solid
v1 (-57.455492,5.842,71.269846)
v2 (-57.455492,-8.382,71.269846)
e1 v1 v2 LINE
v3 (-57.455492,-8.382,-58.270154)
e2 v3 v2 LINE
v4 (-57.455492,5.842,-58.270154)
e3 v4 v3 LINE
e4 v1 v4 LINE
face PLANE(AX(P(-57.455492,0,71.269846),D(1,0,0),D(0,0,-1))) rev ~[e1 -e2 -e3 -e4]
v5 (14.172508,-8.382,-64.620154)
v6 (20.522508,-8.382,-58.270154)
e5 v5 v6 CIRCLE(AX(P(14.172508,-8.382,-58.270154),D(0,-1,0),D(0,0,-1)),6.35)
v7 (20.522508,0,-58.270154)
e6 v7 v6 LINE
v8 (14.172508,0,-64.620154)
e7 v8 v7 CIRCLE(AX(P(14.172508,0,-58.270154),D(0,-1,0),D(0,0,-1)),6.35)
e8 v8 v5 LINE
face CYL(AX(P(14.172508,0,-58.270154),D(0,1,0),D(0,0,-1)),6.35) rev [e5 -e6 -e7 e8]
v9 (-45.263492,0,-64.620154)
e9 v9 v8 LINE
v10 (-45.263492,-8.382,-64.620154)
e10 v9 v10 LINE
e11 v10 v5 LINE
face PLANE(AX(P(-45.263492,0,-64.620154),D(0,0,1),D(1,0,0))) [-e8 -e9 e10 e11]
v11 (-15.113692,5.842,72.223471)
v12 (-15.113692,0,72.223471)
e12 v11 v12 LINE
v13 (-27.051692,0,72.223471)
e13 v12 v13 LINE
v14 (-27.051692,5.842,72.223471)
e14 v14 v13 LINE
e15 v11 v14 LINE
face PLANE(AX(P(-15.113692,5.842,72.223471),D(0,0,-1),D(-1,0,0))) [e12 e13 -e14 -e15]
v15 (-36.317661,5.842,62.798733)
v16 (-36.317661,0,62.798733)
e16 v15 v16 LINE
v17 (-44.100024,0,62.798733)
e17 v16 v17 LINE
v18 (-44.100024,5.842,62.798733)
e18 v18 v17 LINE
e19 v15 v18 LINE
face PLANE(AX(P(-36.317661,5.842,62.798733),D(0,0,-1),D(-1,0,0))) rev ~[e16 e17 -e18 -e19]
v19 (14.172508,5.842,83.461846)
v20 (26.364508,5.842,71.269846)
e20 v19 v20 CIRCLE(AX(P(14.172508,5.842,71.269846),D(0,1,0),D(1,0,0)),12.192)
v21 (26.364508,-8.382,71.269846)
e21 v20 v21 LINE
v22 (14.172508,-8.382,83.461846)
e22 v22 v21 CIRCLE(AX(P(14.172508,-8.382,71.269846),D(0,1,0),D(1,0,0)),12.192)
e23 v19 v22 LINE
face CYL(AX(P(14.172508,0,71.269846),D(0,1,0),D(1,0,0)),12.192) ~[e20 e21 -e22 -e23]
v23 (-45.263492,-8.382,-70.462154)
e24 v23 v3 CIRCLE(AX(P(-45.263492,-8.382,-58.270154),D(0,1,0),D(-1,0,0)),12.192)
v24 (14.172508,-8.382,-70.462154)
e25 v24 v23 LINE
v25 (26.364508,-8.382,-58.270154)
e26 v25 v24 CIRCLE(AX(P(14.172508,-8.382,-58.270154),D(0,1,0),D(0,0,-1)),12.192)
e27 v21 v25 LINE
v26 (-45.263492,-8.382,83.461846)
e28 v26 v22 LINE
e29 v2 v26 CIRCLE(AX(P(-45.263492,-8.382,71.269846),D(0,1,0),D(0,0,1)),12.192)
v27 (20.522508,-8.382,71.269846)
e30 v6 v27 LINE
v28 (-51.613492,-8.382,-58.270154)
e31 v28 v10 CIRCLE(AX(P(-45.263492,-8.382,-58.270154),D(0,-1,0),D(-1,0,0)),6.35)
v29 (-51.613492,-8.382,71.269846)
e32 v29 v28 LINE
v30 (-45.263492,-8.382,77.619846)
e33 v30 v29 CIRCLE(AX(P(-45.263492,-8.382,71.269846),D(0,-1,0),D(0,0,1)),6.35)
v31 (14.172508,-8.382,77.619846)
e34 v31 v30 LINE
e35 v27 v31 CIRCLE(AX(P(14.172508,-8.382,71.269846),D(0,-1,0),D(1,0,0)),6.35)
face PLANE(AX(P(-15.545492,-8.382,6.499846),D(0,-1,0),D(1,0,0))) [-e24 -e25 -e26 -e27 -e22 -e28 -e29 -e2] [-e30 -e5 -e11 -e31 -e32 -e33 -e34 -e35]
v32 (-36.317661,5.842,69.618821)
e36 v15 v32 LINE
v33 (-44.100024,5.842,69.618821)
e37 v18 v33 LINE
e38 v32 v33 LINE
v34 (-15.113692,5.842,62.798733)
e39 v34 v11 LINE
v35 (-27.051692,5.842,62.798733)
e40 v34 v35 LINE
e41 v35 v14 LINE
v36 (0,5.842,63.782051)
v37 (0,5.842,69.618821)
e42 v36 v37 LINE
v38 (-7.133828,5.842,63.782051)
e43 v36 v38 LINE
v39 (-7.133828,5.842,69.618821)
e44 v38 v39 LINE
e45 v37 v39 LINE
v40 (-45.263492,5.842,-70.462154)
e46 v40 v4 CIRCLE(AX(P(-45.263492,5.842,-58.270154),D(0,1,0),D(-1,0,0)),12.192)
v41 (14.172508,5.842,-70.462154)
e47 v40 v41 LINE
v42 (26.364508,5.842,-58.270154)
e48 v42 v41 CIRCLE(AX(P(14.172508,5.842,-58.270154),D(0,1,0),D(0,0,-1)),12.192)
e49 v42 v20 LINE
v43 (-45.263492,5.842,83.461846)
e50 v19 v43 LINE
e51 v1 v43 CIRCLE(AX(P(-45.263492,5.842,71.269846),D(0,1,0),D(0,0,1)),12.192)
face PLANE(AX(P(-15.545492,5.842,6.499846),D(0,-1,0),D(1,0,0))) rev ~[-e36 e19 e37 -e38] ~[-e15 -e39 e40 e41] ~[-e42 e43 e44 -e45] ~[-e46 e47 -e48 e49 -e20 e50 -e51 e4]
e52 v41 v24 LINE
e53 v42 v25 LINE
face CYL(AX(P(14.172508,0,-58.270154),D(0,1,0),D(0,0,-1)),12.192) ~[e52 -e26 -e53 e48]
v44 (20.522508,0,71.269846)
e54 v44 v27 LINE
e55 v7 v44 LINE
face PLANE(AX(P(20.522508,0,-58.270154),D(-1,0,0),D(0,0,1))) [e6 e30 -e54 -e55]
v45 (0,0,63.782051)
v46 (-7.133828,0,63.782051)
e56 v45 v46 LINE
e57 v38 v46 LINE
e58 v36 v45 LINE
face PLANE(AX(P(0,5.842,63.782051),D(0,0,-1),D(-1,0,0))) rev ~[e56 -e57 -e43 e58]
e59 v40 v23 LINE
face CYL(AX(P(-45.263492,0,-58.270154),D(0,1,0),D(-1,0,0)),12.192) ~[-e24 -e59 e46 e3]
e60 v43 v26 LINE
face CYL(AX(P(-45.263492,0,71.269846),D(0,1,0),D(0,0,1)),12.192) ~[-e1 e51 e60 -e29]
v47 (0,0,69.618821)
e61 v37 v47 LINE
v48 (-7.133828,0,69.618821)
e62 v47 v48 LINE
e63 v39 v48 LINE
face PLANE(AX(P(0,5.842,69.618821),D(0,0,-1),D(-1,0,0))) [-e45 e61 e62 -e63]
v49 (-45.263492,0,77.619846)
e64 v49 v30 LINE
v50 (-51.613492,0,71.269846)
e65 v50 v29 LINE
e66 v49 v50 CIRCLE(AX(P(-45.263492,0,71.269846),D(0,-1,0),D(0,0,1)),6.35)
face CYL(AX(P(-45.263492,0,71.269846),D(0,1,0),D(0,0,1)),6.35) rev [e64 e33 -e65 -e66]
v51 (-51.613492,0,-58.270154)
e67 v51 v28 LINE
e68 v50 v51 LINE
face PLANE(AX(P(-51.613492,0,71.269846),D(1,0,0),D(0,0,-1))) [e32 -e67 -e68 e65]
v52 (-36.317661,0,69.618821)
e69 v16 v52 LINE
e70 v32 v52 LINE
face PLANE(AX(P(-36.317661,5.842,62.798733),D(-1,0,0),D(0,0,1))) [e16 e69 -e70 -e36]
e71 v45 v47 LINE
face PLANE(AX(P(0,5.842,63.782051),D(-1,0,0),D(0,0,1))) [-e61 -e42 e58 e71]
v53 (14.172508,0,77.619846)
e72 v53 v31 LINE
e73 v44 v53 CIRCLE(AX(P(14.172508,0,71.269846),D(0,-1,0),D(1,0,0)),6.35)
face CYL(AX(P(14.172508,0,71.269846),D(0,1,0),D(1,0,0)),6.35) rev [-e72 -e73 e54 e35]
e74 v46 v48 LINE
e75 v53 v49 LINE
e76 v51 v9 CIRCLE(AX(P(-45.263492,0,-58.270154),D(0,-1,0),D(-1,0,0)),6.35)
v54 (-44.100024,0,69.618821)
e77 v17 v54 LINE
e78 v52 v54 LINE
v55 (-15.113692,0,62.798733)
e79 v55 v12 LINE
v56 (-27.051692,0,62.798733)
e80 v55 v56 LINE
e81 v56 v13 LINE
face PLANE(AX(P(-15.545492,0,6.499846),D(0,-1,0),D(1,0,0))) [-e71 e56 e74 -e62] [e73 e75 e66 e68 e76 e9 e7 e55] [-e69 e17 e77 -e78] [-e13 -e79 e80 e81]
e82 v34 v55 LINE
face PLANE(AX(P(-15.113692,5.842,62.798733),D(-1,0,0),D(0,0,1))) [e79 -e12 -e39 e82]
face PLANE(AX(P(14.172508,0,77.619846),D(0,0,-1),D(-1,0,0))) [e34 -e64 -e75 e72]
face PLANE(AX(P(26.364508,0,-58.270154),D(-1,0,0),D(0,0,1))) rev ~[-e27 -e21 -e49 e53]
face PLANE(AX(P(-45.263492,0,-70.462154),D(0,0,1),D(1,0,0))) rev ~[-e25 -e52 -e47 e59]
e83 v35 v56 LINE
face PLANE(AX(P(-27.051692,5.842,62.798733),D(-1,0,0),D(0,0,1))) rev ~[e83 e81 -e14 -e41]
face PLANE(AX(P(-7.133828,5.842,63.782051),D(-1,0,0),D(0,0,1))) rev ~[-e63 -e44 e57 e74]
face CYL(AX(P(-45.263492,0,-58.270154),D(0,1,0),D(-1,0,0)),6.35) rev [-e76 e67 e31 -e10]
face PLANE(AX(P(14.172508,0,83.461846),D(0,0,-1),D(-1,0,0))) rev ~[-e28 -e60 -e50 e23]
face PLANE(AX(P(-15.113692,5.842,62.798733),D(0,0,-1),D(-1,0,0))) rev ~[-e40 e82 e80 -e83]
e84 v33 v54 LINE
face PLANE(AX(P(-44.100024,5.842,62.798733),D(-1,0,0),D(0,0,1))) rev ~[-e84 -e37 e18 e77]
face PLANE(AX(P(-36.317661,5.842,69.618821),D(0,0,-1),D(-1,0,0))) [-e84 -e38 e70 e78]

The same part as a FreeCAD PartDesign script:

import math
import FreeCAD as App
import Part
import Sketcher
from FreeCAD import Vector
Q = App.Units.Quantity


def faces_at(feature, points):
    """Names of the faces that lie closest to the given points."""
    faces = feature.Shape.Faces
    near = lambda p: min(range(len(faces)), key=lambda i: faces[i].distToShape(Part.Vertex(*p))[0])
    return sorted({f"Face{near(p) + 1}" for p in points})

doc = App.newDocument("Part")
params = doc.addObject("Spreadsheet::Sheet", "Params")
for row, (alias, value) in enumerate([
    ("sketch1_radius", "0.25 in"),
    ("sketch1_height", "5.1 in"),
    ("sketch1_width", "2.34 in"),
    ("pad1_length", "0.33 in"),
    ("thickness_wall", "0.23 in"),
    ("sketch2_width", "0.47 in"),
    ("pocket1_length", "0.23 in"),
], start=1):
    params.set(f"A{row}", alias)
    params.set(f"B{row}", "=" + value)
    params.setAlias(f"B{row}", alias)

body = doc.addObject("PartDesign::Body", "Body")

# Sketch on XZ plane
sketch1 = body.newObject("Sketcher::SketchObject", "Sketch")
sketch1.AttachmentSupport = (doc.getObject("XZ_Plane"), [""])
sketch1.MapMode = "FlatFace"
sketch1.addGeometry(Part.LineSegment(Vector(-45, -65, 0), Vector(14, -65, 0)), False)
sketch1.addGeometry(Part.ArcOfCircle(Part.Circle(Vector(14, -58, 0), Vector(0, 0, 1), 6), math.radians(-90), math.radians(0)), False)
sketch1.addGeometry(Part.LineSegment(Vector(21, -58, 0), Vector(21, 71, 0)), False)
sketch1.addGeometry(Part.ArcOfCircle(Part.Circle(Vector(14, 71, 0), Vector(0, 0, 1), 6), math.radians(0), math.radians(90)), False)
sketch1.addGeometry(Part.LineSegment(Vector(14, 78, 0), Vector(-45, 78, 0)), False)
sketch1.addGeometry(Part.ArcOfCircle(Part.Circle(Vector(-45, 71, 0), Vector(0, 0, 1), 6), math.radians(90), math.radians(180)), False)
sketch1.addGeometry(Part.LineSegment(Vector(-52, 71, 0), Vector(-52, -58, 0)), False)
sketch1.addGeometry(Part.ArcOfCircle(Part.Circle(Vector(-45, -58, 0), Vector(0, 0, 1), 6), math.radians(180), math.radians(270)), False)
sketch1.addConstraint(Sketcher.Constraint("Tangent", 0, 2, 1, 1))
sketch1.addConstraint(Sketcher.Constraint("Tangent", 1, 2, 2, 1))
sketch1.addConstraint(Sketcher.Constraint("Tangent", 2, 2, 3, 1))
sketch1.addConstraint(Sketcher.Constraint("Tangent", 3, 2, 4, 1))
sketch1.addConstraint(Sketcher.Constraint("Tangent", 4, 2, 5, 1))
sketch1.addConstraint(Sketcher.Constraint("Tangent", 5, 2, 6, 1))
sketch1.addConstraint(Sketcher.Constraint("Tangent", 6, 2, 7, 1))
sketch1.addConstraint(Sketcher.Constraint("Tangent", 7, 2, 0, 1))
sketch1.addConstraint(Sketcher.Constraint("Horizontal", 0))
sketch1.addConstraint(Sketcher.Constraint("Vertical", 2))
sketch1.addConstraint(Sketcher.Constraint("Horizontal", 4))
sketch1.addConstraint(Sketcher.Constraint("Vertical", 6))
sketch1.addConstraint(Sketcher.Constraint("Equal", 1, 3))
sketch1.addConstraint(Sketcher.Constraint("Equal", 3, 5))
sketch1.addConstraint(Sketcher.Constraint("Equal", 5, 7))
sketch1.addConstraint(Sketcher.Constraint("Radius", 1, Q("0.25 in")))
sketch1.addConstraint(Sketcher.Constraint("DistanceY", 2, 1, 2, 2, Q("5.1 in")))
sketch1.addConstraint(Sketcher.Constraint("DistanceX", 0, 1, 0, 2, Q("2.34 in")))
sketch1.addConstraint(Sketcher.Constraint("DistanceX", -1, 1, 1, 3, 14.172508))
sketch1.addConstraint(Sketcher.Constraint("DistanceY", 1, 3, -1, 1, 58.270154))
sketch1.setExpression("Constraints[15]", "Params.sketch1_radius")
sketch1.setExpression("Constraints[16]", "Params.sketch1_height")
sketch1.setExpression("Constraints[17]", "Params.sketch1_width")
pad1 = body.newObject("PartDesign::Pad", "Pad")
pad1.Profile = sketch1
pad1.setExpression("Length", "Params.pad1_length")
doc.recompute()

thickness = body.newObject("PartDesign::Thickness", "Thickness")
thickness.Base = (pad1, faces_at(pad1, [(-15.545, -8.382, 6.5)]))
thickness.setExpression("Value", "Params.thickness_wall")
thickness.Reversed = False
thickness.Join = "Intersection"

# Sketch on XZ plane
sketch2 = body.newObject("Sketcher::SketchObject", "Sketch001")
sketch2.AttachmentSupport = (doc.getObject("XZ_Plane"), [""])
sketch2.MapMode = "FlatFace"
sketch2.AttachmentOffset = App.Placement(Vector(0, 0, -0.23 * 25.4), App.Rotation())
sketch2.addGeometry(Part.LineSegment(Vector(-36, 70, 0), Vector(-36, 63, 0)), False)
sketch2.addGeometry(Part.LineSegment(Vector(-36, 63, 0), Vector(-44, 63, 0)), False)
sketch2.addGeometry(Part.LineSegment(Vector(-44, 63, 0), Vector(-44, 70, 0)), False)
sketch2.addGeometry(Part.LineSegment(Vector(-44, 70, 0), Vector(-36, 70, 0)), False)
sketch2.addGeometry(Part.LineSegment(Vector(0, 70, 0), Vector(0, 64, 0)), False)
sketch2.addGeometry(Part.LineSegment(Vector(0, 64, 0), Vector(-7, 64, 0)), False)
sketch2.addGeometry(Part.LineSegment(Vector(-7, 64, 0), Vector(-7, 70, 0)), False)
sketch2.addGeometry(Part.LineSegment(Vector(-7, 70, 0), Vector(0, 70, 0)), False)
sketch2.addGeometry(Part.LineSegment(Vector(-15, 72, 0), Vector(-15, 63, 0)), False)
sketch2.addGeometry(Part.LineSegment(Vector(-15, 63, 0), Vector(-27, 63, 0)), False)
sketch2.addGeometry(Part.LineSegment(Vector(-27, 63, 0), Vector(-27, 72, 0)), False)
sketch2.addGeometry(Part.LineSegment(Vector(-27, 72, 0), Vector(-15, 72, 0)), False)
sketch2.addConstraint(Sketcher.Constraint("Coincident", 0, 2, 1, 1))
sketch2.addConstraint(Sketcher.Constraint("Coincident", 1, 2, 2, 1))
sketch2.addConstraint(Sketcher.Constraint("Coincident", 2, 2, 3, 1))
sketch2.addConstraint(Sketcher.Constraint("Coincident", 3, 2, 0, 1))
sketch2.addConstraint(Sketcher.Constraint("Coincident", 4, 2, 5, 1))
sketch2.addConstraint(Sketcher.Constraint("Coincident", 5, 2, 6, 1))
sketch2.addConstraint(Sketcher.Constraint("Coincident", 6, 2, 7, 1))
sketch2.addConstraint(Sketcher.Constraint("Coincident", 7, 2, 4, 1))
sketch2.addConstraint(Sketcher.Constraint("Coincident", 8, 2, 9, 1))
sketch2.addConstraint(Sketcher.Constraint("Coincident", 9, 2, 10, 1))
sketch2.addConstraint(Sketcher.Constraint("Coincident", 10, 2, 11, 1))
sketch2.addConstraint(Sketcher.Constraint("Coincident", 11, 2, 8, 1))
sketch2.addConstraint(Sketcher.Constraint("Vertical", 0))
sketch2.addConstraint(Sketcher.Constraint("Horizontal", 1))
sketch2.addConstraint(Sketcher.Constraint("Vertical", 2))
sketch2.addConstraint(Sketcher.Constraint("Horizontal", 3))
sketch2.addConstraint(Sketcher.Constraint("Vertical", 4))
sketch2.addConstraint(Sketcher.Constraint("Horizontal", 5))
sketch2.addConstraint(Sketcher.Constraint("Vertical", 6))
sketch2.addConstraint(Sketcher.Constraint("Horizontal", 7))
sketch2.addConstraint(Sketcher.Constraint("Vertical", 8))
sketch2.addConstraint(Sketcher.Constraint("Horizontal", 9))
sketch2.addConstraint(Sketcher.Constraint("Vertical", 10))
sketch2.addConstraint(Sketcher.Constraint("Horizontal", 11))
sketch2.addConstraint(Sketcher.Constraint("PointOnObject", 4, 2, -2))
sketch2.addConstraint(Sketcher.Constraint("Horizontal", 3, 2, 6, 2))
sketch2.addConstraint(Sketcher.Constraint("Horizontal", 1, 2, 8, 2))
sketch2.addConstraint(Sketcher.Constraint("DistanceX", 9, 2, 9, 1, Q("0.47 in")))
sketch2.addConstraint(Sketcher.Constraint("DistanceY", 0, 2, 0, 1, 6.820088))
sketch2.addConstraint(Sketcher.Constraint("DistanceY", 4, 2, 4, 1, 5.83677))
sketch2.addConstraint(Sketcher.Constraint("DistanceY", 8, 2, 8, 1, 9.424739))
sketch2.addConstraint(Sketcher.Constraint("DistanceX", 1, 2, 1, 1, 7.782362))
sketch2.addConstraint(Sketcher.Constraint("DistanceX", 5, 2, 5, 1, 7.133828))
sketch2.addConstraint(Sketcher.Constraint("DistanceX", 0, 2, -1, 1, 36.317661))
sketch2.addConstraint(Sketcher.Constraint("DistanceY", -1, 1, 2, 2, 69.618821))
sketch2.addConstraint(Sketcher.Constraint("DistanceX", 8, 2, -1, 1, 15.113692))
sketch2.setExpression("Constraints[27]", "Params.sketch2_width")
pocket1 = body.newObject("PartDesign::Pocket", "Pocket")
pocket1.Profile = sketch2
pocket1.setExpression("Length", "Params.pocket1_length")
pocket1.Reversed = True

doc.recompute()
